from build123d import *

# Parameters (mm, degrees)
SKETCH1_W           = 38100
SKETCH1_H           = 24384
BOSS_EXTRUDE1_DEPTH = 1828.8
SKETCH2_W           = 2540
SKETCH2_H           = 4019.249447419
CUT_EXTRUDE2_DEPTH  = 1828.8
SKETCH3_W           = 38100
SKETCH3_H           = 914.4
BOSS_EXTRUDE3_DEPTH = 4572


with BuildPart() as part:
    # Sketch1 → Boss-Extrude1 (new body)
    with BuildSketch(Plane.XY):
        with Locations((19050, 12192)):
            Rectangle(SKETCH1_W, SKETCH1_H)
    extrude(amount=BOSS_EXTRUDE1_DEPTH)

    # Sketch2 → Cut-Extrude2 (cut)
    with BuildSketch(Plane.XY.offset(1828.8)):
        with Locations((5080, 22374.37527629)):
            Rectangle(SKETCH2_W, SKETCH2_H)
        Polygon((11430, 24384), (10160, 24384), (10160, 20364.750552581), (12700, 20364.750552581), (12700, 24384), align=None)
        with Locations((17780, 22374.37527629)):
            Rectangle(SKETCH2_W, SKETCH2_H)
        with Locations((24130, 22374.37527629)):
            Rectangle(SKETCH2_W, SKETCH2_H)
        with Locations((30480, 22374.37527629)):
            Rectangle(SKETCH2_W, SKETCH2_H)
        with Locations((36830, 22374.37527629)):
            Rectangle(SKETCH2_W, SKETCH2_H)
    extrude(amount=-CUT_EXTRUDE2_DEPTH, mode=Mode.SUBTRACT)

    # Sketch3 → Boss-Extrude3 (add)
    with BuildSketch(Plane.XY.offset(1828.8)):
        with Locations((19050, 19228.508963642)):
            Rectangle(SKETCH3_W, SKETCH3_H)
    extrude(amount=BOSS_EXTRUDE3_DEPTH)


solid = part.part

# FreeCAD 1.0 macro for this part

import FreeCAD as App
import Part
import Sketcher
from FreeCAD import Vector
Q = App.Units.Quantity

doc = App.newDocument("Part")
body = doc.addObject("PartDesign::Body", "Body")

sketch1 = body.newObject("Sketcher::SketchObject", "Sketch")
sketch1.AttachmentSupport = (doc.getObject("XY_Plane"), [""])
sketch1.MapMode = "FlatFace"
sketch1.addGeometry([
    Part.LineSegment(Vector(0, 24384, 0), Vector(0, 0, 0)),
    Part.LineSegment(Vector(0, 0, 0), Vector(38100, 0, 0)),
    Part.LineSegment(Vector(38100, 0, 0), Vector(38100, 24384, 0)),
    Part.LineSegment(Vector(38100, 24384, 0), Vector(0, 24384, 0)),
], False)
sketch1.addConstraint([
    Sketcher.Constraint("Coincident", 0, 2, 1, 1),
    Sketcher.Constraint("Coincident", 1, 2, 2, 1),
    Sketcher.Constraint("Coincident", 2, 2, 3, 1),
    Sketcher.Constraint("Coincident", 3, 2, 0, 1),
    Sketcher.Constraint("Vertical", 0),
    Sketcher.Constraint("Horizontal", 1),
    Sketcher.Constraint("Vertical", 2),
    Sketcher.Constraint("Horizontal", 3),
    Sketcher.Constraint("Coincident", 0, 2, -1, 1),
    Sketcher.Constraint("DistanceX", 1, 1, 1, 2, Q("1500 in")),
    Sketcher.Constraint("DistanceY", 0, 2, 0, 1, Q("960 in")),
])
pad1 = body.newObject("PartDesign::Pad", "Pad")
pad1.Profile = sketch1
pad1.Length = Q("72 in")

sketch2 = body.newObject("Sketcher::SketchObject", "Sketch001")
sketch2.AttachmentSupport = (doc.getObject("XY_Plane"), [""])
sketch2.MapMode = "FlatFace"
sketch2.AttachmentOffset = App.Placement(Vector(0, 0, 72 * 25.4), App.Rotation())
sketch2.addGeometry([
    Part.LineSegment(Vector(3810, 24384, 0), Vector(3810, 20364.750553, 0)),
    Part.LineSegment(Vector(3810, 20364.750553, 0), Vector(6350, 20364.750553, 0)),
    Part.LineSegment(Vector(6350, 20364.750553, 0), Vector(6350, 24384, 0)),
    Part.LineSegment(Vector(6350, 24384, 0), Vector(3810, 24384, 0)),
    Part.LineSegment(Vector(10160, 24384, 0), Vector(10160, 20364.750553, 0)),
    Part.LineSegment(Vector(10160, 20364.750553, 0), Vector(12700, 20364.750553, 0)),
    Part.LineSegment(Vector(12700, 20364.750553, 0), Vector(12700, 24384, 0)),
    Part.LineSegment(Vector(12700, 24384, 0), Vector(10160, 24384, 0)),
    Part.LineSegment(Vector(16510, 24384, 0), Vector(16510, 20364.750553, 0)),
    Part.LineSegment(Vector(16510, 20364.750553, 0), Vector(19050, 20364.750553, 0)),
    Part.LineSegment(Vector(19050, 20364.750553, 0), Vector(19050, 24384, 0)),
    Part.LineSegment(Vector(19050, 24384, 0), Vector(16510, 24384, 0)),
    Part.LineSegment(Vector(22860, 24384, 0), Vector(22860, 20364.750553, 0)),
    Part.LineSegment(Vector(22860, 20364.750553, 0), Vector(25400, 20364.750553, 0)),
    Part.LineSegment(Vector(25400, 20364.750553, 0), Vector(25400, 24384, 0)),
    Part.LineSegment(Vector(25400, 24384, 0), Vector(22860, 24384, 0)),
    Part.LineSegment(Vector(29210, 24384, 0), Vector(29210, 20364.750553, 0)),
    Part.LineSegment(Vector(29210, 20364.750553, 0), Vector(31750, 20364.750553, 0)),
    Part.LineSegment(Vector(31750, 20364.750553, 0), Vector(31750, 24384, 0)),
    Part.LineSegment(Vector(31750, 24384, 0), Vector(29210, 24384, 0)),
    Part.LineSegment(Vector(35560, 24384, 0), Vector(35560, 20364.750553, 0)),
    Part.LineSegment(Vector(35560, 20364.750553, 0), Vector(38100, 20364.750553, 0)),
    Part.LineSegment(Vector(38100, 20364.750553, 0), Vector(38100, 24384, 0)),
    Part.LineSegment(Vector(38100, 24384, 0), Vector(35560, 24384, 0)),
], False)
sketch2.addConstraint([
    Sketcher.Constraint("Coincident", 0, 2, 1, 1),
    Sketcher.Constraint("Coincident", 1, 2, 2, 1),
    Sketcher.Constraint("Coincident", 2, 2, 3, 1),
    Sketcher.Constraint("Coincident", 3, 2, 0, 1),
    Sketcher.Constraint("Coincident", 4, 2, 5, 1),
    Sketcher.Constraint("Coincident", 5, 2, 6, 1),
    Sketcher.Constraint("Coincident", 6, 2, 7, 1),
    Sketcher.Constraint("Coincident", 7, 2, 4, 1),
    Sketcher.Constraint("Coincident", 8, 2, 9, 1),
    Sketcher.Constraint("Coincident", 9, 2, 10, 1),
    Sketcher.Constraint("Coincident", 10, 2, 11, 1),
    Sketcher.Constraint("Coincident", 11, 2, 8, 1),
    Sketcher.Constraint("Coincident", 12, 2, 13, 1),
    Sketcher.Constraint("Coincident", 13, 2, 14, 1),
    Sketcher.Constraint("Coincident", 14, 2, 15, 1),
    Sketcher.Constraint("Coincident", 15, 2, 12, 1),
    Sketcher.Constraint("Coincident", 16, 2, 17, 1),
    Sketcher.Constraint("Coincident", 17, 2, 18, 1),
    Sketcher.Constraint("Coincident", 18, 2, 19, 1),
    Sketcher.Constraint("Coincident", 19, 2, 16, 1),
    Sketcher.Constraint("Coincident", 20, 2, 21, 1),
    Sketcher.Constraint("Coincident", 21, 2, 22, 1),
    Sketcher.Constraint("Coincident", 22, 2, 23, 1),
    Sketcher.Constraint("Coincident", 23, 2, 20, 1),
    Sketcher.Constraint("Vertical", 0),
    Sketcher.Constraint("Horizontal", 1),
    Sketcher.Constraint("Vertical", 2),
    Sketcher.Constraint("Horizontal", 3),
    Sketcher.Constraint("Vertical", 4),
    Sketcher.Constraint("Horizontal", 5),
    Sketcher.Constraint("Vertical", 6),
    Sketcher.Constraint("Horizontal", 7),
    Sketcher.Constraint("Vertical", 8),
    Sketcher.Constraint("Horizontal", 9),
    Sketcher.Constraint("Vertical", 10),
    Sketcher.Constraint("Horizontal", 11),
    Sketcher.Constraint("Vertical", 12),
    Sketcher.Constraint("Horizontal", 13),
    Sketcher.Constraint("Vertical", 14),
    Sketcher.Constraint("Horizontal", 15),
    Sketcher.Constraint("Vertical", 16),
    Sketcher.Constraint("Horizontal", 17),
    Sketcher.Constraint("Vertical", 18),
    Sketcher.Constraint("Horizontal", 19),
    Sketcher.Constraint("Vertical", 20),
    Sketcher.Constraint("Horizontal", 21),
    Sketcher.Constraint("Vertical", 22),
    Sketcher.Constraint("Horizontal", 23),
    Sketcher.Constraint("Horizontal", 1, 2, 4, 2),
    Sketcher.Constraint("Horizontal", 3, 2, 6, 2),
    Sketcher.Constraint("Horizontal", 5, 2, 8, 2),
    Sketcher.Constraint("Horizontal", 7, 2, 10, 2),
    Sketcher.Constraint("Horizontal", 9, 2, 12, 2),
    Sketcher.Constraint("Horizontal", 11, 2, 14, 2),
    Sketcher.Constraint("Horizontal", 13, 2, 16, 2),
    Sketcher.Constraint("Horizontal", 15, 2, 18, 2),
    Sketcher.Constraint("Horizontal", 17, 2, 20, 2),
    Sketcher.Constraint("Horizontal", 19, 2, 22, 2),
    Sketcher.Constraint("Equal", 3, 5),
    Sketcher.Constraint("Equal", 7, 9),
    Sketcher.Constraint("Equal", 11, 13),
    Sketcher.Constraint("Equal", 15, 17),
    Sketcher.Constraint("Equal", 19, 21),
    Sketcher.Constraint("DistanceX", 1, 1, 1, 2, Q("100 in")),
    Sketcher.Constraint("DistanceX", -1, 1, 0, 2, Q("150 in")),
    Sketcher.Constraint("DistanceY", -1, 1, 2, 2, Q("960 in")),
    Sketcher.Constraint("DistanceX", -1, 1, 4, 2, Q("400 in")),
    Sketcher.Constraint("DistanceX", -1, 1, 8, 2, Q("650 in")),
    Sketcher.Constraint("DistanceX", -1, 1, 12, 2, Q("900 in")),
    Sketcher.Constraint("DistanceX", -1, 1, 16, 2, Q("1150 in")),
    Sketcher.Constraint("DistanceX", -1, 1, 20, 2, Q("1400 in")),
    Sketcher.Constraint("DistanceY", 0, 2, 0, 1, 4019.249447),
])
pocket1 = body.newObject("PartDesign::Pocket", "Pocket")
pocket1.Profile = sketch2
pocket1.Length = Q("72 in")

sketch3 = body.newObject("Sketcher::SketchObject", "Sketch002")
sketch3.AttachmentSupport = (doc.getObject("XY_Plane"), [""])
sketch3.MapMode = "FlatFace"
sketch3.AttachmentOffset = App.Placement(Vector(0, 0, 72 * 25.4), App.Rotation())
sketch3.addGeometry([
    Part.LineSegment(Vector(0, 19685.708964, 0), Vector(0, 18771.308964, 0)),
    Part.LineSegment(Vector(0, 18771.308964, 0), Vector(38100, 18771.308964, 0)),
    Part.LineSegment(Vector(38100, 18771.308964, 0), Vector(38100, 19685.708964, 0)),
    Part.LineSegment(Vector(38100, 19685.708964, 0), Vector(0, 19685.708964, 0)),
], False)
sketch3.addConstraint([
    Sketcher.Constraint("Coincident", 0, 2, 1, 1),
    Sketcher.Constraint("Coincident", 1, 2, 2, 1),
    Sketcher.Constraint("Coincident", 2, 2, 3, 1),
    Sketcher.Constraint("Coincident", 3, 2, 0, 1),
    Sketcher.Constraint("Vertical", 0),
    Sketcher.Constraint("Horizontal", 1),
    Sketcher.Constraint("Vertical", 2),
    Sketcher.Constraint("Horizontal", 3),
    Sketcher.Constraint("PointOnObject", 0, 2, -2),
    Sketcher.Constraint("DistanceX", 1, 1, 1, 2, Q("1500 in")),
    Sketcher.Constraint("DistanceY", 0, 2, 0, 1, Q("36 in")),
    Sketcher.Constraint("DistanceY", -1, 1, 0, 2, 18771.308964),
])
pad2 = body.newObject("PartDesign::Pad", "Pad001")
pad2.Profile = sketch3
pad2.Length = Q("180 in")

doc.recompute()
